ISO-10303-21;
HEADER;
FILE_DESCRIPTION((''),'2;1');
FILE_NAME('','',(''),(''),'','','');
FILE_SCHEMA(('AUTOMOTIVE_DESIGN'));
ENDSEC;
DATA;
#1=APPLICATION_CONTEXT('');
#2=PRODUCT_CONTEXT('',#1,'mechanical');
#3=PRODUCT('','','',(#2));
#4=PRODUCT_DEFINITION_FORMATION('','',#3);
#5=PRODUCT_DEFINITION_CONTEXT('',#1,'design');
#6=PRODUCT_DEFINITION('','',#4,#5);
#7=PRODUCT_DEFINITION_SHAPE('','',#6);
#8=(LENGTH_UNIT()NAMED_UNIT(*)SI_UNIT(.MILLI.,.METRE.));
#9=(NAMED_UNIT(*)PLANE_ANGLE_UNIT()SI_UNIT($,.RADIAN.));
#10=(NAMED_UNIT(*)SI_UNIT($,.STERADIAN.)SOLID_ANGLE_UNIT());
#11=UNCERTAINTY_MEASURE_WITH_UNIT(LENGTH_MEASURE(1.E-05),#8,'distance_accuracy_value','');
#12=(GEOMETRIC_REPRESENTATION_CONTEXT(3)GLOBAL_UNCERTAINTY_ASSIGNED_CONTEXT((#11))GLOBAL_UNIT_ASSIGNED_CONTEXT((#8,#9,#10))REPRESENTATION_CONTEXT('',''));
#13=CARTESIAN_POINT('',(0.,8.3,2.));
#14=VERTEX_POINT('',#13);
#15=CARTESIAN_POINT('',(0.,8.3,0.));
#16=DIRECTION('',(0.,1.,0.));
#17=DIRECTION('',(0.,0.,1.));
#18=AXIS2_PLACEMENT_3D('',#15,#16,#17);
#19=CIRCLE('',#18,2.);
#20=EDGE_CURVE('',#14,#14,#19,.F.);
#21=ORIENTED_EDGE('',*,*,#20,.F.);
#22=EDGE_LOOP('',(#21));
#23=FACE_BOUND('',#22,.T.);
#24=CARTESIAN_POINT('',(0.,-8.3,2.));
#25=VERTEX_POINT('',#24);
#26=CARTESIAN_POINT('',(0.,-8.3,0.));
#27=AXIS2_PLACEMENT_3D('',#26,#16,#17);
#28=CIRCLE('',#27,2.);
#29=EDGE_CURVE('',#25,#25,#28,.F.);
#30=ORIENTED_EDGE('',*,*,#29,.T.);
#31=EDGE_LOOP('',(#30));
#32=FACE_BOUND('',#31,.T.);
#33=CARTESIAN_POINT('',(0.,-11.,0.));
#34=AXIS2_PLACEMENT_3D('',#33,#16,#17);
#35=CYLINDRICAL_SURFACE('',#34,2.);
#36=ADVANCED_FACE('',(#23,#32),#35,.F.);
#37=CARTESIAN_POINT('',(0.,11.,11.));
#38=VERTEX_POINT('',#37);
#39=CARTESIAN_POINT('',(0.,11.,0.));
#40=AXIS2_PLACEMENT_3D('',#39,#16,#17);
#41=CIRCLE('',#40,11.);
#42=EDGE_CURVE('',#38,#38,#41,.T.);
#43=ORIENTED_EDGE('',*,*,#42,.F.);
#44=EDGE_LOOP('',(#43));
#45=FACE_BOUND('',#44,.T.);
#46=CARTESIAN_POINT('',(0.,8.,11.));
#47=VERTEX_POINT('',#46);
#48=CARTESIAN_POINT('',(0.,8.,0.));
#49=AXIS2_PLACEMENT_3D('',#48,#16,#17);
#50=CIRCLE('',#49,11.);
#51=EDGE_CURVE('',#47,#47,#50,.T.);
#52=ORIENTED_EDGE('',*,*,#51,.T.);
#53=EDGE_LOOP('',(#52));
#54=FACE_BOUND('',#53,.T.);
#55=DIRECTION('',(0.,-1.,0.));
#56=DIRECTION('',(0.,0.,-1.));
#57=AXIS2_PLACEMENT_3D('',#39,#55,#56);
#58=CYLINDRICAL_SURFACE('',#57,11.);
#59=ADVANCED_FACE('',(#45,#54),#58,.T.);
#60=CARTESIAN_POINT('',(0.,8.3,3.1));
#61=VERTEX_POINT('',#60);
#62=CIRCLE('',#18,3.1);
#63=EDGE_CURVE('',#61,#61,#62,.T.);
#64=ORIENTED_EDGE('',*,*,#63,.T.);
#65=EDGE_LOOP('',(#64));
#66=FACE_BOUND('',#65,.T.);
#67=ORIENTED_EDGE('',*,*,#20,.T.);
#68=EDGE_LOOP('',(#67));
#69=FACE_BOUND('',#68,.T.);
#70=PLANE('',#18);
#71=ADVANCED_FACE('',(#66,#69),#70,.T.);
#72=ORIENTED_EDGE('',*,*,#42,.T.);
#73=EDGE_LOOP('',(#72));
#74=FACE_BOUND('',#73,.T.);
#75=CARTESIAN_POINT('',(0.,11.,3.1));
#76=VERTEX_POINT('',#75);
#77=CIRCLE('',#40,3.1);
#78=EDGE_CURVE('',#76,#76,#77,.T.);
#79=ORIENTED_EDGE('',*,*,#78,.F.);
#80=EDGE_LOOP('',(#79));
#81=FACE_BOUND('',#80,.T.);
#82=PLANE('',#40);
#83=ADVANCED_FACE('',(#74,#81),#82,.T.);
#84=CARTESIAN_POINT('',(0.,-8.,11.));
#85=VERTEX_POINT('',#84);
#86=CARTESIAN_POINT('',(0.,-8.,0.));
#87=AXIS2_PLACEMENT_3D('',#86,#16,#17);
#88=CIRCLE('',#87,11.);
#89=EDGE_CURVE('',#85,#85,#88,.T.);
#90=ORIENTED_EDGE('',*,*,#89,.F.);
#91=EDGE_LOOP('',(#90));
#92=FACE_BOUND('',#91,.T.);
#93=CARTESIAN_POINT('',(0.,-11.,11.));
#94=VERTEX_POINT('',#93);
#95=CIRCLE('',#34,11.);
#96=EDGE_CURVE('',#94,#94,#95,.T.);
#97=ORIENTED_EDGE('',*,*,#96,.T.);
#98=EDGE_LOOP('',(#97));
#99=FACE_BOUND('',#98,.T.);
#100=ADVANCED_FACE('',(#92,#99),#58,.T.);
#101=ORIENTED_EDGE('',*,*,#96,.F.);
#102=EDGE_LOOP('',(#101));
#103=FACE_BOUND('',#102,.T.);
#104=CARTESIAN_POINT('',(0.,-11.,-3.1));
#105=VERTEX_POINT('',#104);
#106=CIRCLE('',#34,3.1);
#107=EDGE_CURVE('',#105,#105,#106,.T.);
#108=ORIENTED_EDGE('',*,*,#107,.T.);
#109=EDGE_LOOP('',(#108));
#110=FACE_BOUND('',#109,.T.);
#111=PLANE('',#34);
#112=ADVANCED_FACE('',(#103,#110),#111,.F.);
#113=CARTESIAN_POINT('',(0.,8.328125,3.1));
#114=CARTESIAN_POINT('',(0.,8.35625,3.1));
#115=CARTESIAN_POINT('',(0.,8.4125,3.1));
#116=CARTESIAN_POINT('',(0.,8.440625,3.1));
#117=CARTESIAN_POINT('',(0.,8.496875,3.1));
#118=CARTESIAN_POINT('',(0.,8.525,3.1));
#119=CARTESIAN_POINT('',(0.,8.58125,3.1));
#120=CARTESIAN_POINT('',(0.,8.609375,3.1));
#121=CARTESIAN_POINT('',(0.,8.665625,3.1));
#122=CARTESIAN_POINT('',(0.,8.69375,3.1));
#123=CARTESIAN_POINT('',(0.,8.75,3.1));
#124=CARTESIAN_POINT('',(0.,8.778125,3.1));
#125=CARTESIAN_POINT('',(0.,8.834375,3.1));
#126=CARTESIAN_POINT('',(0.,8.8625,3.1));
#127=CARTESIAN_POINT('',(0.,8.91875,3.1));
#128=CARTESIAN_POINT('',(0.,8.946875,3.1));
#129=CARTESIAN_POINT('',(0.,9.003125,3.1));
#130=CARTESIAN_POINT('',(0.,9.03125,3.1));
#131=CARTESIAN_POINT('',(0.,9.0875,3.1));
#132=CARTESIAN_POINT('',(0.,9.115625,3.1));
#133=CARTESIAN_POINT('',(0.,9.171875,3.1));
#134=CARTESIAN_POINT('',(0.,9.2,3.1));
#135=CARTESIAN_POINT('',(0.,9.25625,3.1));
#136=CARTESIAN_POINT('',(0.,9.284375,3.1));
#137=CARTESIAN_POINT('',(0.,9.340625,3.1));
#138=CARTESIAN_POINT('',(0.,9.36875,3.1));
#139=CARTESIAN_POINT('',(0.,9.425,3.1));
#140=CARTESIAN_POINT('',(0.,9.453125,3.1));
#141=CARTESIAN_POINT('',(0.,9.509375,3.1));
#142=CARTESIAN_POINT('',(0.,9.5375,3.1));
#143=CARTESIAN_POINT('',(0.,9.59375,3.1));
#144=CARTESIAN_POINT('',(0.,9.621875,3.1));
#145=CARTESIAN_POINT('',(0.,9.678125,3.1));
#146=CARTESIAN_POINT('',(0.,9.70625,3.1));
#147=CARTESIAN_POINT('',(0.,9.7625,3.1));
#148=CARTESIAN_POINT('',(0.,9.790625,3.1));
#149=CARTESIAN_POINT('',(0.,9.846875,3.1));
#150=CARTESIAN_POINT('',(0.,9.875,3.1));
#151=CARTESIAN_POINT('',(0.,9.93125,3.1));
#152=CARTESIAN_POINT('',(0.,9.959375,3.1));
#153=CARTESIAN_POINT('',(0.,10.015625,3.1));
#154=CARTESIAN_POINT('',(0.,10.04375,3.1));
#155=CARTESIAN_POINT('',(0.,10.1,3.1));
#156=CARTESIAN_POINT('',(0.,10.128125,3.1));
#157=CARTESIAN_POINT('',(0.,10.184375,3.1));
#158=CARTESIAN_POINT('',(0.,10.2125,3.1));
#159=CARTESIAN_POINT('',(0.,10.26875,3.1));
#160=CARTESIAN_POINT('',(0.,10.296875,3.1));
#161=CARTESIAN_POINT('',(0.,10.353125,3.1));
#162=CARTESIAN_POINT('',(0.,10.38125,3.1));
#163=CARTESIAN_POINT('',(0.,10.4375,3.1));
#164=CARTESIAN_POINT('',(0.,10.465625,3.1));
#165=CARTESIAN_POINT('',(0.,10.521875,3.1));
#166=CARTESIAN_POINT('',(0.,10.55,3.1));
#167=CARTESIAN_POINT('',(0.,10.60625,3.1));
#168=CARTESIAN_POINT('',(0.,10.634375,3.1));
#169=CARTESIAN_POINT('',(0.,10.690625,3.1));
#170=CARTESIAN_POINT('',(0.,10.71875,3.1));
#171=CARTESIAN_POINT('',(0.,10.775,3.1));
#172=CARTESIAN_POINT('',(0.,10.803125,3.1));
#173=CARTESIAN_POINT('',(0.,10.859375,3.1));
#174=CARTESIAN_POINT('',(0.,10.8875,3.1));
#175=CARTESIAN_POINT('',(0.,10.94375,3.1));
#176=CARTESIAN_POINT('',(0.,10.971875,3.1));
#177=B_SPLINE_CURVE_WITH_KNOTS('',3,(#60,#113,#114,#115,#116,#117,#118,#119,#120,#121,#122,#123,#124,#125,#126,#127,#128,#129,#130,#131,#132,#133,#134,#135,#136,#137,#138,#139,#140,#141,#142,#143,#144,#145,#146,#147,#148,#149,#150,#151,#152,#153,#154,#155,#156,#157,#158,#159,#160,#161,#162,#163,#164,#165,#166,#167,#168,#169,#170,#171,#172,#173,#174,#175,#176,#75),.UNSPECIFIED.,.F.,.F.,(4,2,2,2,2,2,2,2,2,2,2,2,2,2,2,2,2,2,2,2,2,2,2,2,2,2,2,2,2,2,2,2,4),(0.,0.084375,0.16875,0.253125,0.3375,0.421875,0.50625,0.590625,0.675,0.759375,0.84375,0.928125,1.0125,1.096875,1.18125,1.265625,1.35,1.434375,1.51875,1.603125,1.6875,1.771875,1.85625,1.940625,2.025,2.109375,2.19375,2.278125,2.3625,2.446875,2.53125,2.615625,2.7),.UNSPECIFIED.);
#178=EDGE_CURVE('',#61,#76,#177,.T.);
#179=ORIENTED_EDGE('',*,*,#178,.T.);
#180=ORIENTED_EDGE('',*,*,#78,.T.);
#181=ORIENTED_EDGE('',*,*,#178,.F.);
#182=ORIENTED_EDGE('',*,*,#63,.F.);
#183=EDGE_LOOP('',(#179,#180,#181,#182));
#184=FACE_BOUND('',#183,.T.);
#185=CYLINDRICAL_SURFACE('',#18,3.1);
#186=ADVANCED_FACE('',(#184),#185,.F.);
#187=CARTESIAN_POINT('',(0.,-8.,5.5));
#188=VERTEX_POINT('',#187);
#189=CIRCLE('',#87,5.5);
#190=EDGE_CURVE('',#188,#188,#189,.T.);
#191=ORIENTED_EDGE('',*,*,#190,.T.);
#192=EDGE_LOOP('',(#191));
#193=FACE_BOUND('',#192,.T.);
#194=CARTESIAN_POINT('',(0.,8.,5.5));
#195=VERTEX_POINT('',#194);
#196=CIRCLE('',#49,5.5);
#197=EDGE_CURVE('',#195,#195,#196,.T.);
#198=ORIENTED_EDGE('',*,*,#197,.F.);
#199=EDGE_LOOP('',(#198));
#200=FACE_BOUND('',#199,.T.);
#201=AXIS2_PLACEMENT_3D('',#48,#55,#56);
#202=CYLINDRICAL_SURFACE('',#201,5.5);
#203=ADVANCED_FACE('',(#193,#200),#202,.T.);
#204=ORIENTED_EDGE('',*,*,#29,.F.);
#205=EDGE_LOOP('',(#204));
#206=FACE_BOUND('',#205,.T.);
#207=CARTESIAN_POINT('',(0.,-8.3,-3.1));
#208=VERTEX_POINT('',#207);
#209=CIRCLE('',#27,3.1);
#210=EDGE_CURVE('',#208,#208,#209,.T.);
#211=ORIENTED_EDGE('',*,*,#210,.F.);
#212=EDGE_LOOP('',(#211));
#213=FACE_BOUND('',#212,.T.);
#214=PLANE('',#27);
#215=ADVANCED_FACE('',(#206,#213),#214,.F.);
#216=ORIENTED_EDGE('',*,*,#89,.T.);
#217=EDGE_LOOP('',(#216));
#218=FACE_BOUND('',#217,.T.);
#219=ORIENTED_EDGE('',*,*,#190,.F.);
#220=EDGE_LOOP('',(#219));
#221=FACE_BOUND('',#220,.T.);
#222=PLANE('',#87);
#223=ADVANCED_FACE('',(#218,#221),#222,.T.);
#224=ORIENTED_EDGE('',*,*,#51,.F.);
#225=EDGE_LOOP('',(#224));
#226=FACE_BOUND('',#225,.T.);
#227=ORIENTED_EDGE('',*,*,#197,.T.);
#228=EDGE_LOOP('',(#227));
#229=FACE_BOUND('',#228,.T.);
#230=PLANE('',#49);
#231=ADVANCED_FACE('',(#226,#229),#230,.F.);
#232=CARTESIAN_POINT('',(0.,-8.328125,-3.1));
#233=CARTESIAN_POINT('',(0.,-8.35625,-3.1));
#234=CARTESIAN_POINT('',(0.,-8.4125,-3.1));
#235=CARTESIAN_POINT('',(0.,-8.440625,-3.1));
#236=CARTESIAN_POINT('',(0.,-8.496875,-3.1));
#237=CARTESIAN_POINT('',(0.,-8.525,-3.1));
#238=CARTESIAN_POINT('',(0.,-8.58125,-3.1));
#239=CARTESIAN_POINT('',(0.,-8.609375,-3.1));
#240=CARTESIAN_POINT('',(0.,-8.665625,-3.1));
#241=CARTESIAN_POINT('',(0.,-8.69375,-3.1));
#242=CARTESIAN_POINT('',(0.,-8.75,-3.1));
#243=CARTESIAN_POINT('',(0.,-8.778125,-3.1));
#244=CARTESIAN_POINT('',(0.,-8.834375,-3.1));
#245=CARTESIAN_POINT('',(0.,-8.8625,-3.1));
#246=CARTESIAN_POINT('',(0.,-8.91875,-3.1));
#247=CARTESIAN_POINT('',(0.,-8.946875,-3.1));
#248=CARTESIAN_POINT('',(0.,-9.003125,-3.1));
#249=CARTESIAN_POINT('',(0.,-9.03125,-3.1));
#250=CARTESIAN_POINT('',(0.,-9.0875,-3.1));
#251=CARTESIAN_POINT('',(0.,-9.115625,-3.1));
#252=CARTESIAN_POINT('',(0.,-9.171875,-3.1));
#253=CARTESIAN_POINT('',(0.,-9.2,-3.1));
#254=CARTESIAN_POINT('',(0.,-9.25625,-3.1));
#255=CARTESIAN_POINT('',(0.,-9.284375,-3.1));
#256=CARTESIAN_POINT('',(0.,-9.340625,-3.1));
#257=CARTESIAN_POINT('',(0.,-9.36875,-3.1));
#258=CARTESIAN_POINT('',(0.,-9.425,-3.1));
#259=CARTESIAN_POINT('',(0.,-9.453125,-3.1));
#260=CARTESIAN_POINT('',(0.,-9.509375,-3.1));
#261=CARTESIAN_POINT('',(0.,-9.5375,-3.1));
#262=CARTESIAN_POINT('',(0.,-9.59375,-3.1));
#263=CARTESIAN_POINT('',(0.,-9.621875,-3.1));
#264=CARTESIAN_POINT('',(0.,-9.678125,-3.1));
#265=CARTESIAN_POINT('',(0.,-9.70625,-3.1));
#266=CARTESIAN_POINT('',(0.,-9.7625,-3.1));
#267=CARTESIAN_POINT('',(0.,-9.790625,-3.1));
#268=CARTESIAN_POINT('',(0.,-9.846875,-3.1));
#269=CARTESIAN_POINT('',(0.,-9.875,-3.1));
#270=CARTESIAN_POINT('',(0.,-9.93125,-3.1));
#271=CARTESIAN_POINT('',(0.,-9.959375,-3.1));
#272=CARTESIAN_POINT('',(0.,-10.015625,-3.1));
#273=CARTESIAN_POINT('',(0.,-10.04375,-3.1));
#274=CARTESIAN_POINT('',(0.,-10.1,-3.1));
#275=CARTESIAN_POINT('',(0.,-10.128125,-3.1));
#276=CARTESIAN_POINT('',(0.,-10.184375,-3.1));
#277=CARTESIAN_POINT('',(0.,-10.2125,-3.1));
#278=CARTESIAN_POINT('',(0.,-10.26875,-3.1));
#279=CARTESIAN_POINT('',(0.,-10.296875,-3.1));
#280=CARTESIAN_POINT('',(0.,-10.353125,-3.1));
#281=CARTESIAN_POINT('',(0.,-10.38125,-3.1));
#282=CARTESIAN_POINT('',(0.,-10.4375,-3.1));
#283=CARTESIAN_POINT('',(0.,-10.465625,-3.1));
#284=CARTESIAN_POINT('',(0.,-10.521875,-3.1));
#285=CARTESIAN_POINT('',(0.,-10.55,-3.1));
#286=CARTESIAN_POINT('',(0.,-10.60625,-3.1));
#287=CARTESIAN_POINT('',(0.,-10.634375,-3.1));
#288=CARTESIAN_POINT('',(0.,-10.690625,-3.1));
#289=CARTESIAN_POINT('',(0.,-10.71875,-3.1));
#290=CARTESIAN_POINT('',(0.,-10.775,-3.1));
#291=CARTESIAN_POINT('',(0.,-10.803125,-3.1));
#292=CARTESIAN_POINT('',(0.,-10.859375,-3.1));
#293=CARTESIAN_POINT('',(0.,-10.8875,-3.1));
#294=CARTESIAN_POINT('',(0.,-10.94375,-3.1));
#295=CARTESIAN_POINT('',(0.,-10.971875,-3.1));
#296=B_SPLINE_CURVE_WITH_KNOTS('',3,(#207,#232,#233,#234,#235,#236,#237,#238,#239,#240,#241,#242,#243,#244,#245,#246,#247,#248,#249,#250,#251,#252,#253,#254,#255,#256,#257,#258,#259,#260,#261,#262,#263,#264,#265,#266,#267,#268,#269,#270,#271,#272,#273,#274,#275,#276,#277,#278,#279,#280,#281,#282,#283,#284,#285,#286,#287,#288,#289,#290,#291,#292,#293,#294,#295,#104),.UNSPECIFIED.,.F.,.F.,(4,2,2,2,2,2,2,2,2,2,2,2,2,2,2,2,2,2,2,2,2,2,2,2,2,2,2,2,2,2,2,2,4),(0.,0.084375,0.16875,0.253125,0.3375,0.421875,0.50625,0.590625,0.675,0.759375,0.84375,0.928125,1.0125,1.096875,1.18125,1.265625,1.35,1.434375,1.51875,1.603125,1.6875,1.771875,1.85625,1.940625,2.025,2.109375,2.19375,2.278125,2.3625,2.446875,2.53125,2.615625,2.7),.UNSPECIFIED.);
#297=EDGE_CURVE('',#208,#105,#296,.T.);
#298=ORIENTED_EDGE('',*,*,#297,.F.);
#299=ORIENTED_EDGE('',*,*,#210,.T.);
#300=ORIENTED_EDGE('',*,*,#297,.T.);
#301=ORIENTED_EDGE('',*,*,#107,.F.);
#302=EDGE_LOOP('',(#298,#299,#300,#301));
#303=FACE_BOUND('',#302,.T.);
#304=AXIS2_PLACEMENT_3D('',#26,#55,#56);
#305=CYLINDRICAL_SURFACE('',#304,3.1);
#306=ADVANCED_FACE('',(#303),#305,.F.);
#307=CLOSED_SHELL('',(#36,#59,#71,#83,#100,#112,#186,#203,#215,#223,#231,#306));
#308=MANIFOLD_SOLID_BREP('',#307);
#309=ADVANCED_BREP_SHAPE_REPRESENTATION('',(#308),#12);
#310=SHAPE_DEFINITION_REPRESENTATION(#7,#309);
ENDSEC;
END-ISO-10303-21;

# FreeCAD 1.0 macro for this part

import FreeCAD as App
import Part
import Sketcher
from FreeCAD import Vector
Q = App.Units.Quantity

doc = App.newDocument("Part")
body = doc.addObject("PartDesign::Body", "Body")

# Sketch on XZ plane
sketch1 = doc.addObject("Sketcher::SketchObject", "Sketch")
body.addObject(sketch1)
sketch1.AttachmentSupport = (doc.XZ_Plane, [""])
sketch1.MapMode = "FlatFace"
sketch1.addGeometry(Part.Circle(Vector(0, 0, 0), Vector(0, 0, 1), 11), False)
sketch1.addConstraint([
    Sketcher.Constraint("Coincident", 0, 3, -1, 1),
    Sketcher.Constraint("Diameter", 0, Q("22 mm")),
])
pad1 = doc.addObject("PartDesign::Pad", "Pad")
body.addObject(pad1)
pad1.Profile = sketch1
pad1.Length = 22
pad1.Midplane = True

# Sketch on XZ plane
sketch2 = doc.addObject("Sketcher::SketchObject", "Sketch001")
body.addObject(sketch2)
sketch2.AttachmentSupport = (doc.XZ_Plane, [""])
sketch2.MapMode = "FlatFace"
sketch2.addGeometry([
    Part.Circle(Vector(0, 0, 0), Vector(0, 0, 1), 11),
    Part.Circle(Vector(0, 0, 0), Vector(0, 0, 1), 6),
], False)
sketch2.addConstraint([
    Sketcher.Constraint("Coincident", 0, 3, -1, 1),
    Sketcher.Constraint("Coincident", 1, 3, -1, 1),
    Sketcher.Constraint("Diameter", 0, Q("22 mm")),
    Sketcher.Constraint("Diameter", 1, Q("11 mm")),
])
pocket1 = doc.addObject("PartDesign::Pocket", "Pocket")
body.addObject(pocket1)
pocket1.Profile = sketch2
pocket1.Length = 16
pocket1.Midplane = True

# Sketch on XZ plane
sketch3 = doc.addObject("Sketcher::SketchObject", "Sketch002")
body.addObject(sketch3)
sketch3.AttachmentSupport = (doc.XZ_Plane, [""])
sketch3.MapMode = "FlatFace"
sketch3.AttachmentOffset = App.Placement(Vector(0, 0, -11), App.Rotation())
sketch3.addGeometry(Part.Circle(Vector(0, 0, 0), Vector(0, 0, 1), 2), False)
sketch3.addConstraint([
    Sketcher.Constraint("Coincident", 0, 3, -1, 1),
    Sketcher.Constraint("Diameter", 0, Q("4 mm")),
])
pocket2 = doc.addObject("PartDesign::Pocket", "Pocket001")
body.addObject(pocket2)
pocket2.Profile = sketch3
pocket2.Type = "ThroughAll"
pocket2.Reversed = True

# Sketch on XZ plane
sketch4 = doc.addObject("Sketcher::SketchObject", "Sketch003")
body.addObject(sketch4)
sketch4.AttachmentSupport = (doc.XZ_Plane, [""])
sketch4.MapMode = "FlatFace"
sketch4.AttachmentOffset = App.Placement(Vector(0, 0, -11), App.Rotation())
sketch4.addGeometry(Part.Circle(Vector(0, 0, 0), Vector(0, 0, 1), 3.1), False)
sketch4.addConstraint([
    Sketcher.Constraint("Coincident", 0, 3, -1, 1),
    Sketcher.Constraint("Diameter", 0, Q("6.2 mm")),
])
pocket3 = doc.addObject("PartDesign::Pocket", "Pocket002")
body.addObject(pocket3)
pocket3.Profile = sketch4
pocket3.Length = 2.7
pocket3.Reversed = True

# Sketch on XZ plane
sketch5 = doc.addObject("Sketcher::SketchObject", "Sketch004")
body.addObject(sketch5)
sketch5.AttachmentSupport = (doc.XZ_Plane, [""])
sketch5.MapMode = "FlatFace"
sketch5.AttachmentOffset = App.Placement(Vector(0, 0, 8.3), App.Rotation())
sketch5.addGeometry(Part.Circle(Vector(0, 0, 0), Vector(0, 0, 1), 3.1), False)
sketch5.addConstraint([
    Sketcher.Constraint("Coincident", 0, 3, -1, 1),
    Sketcher.Constraint("Diameter", 0, Q("6.2 mm")),
])
pocket4 = doc.addObject("PartDesign::Pocket", "Pocket003")
body.addObject(pocket4)
pocket4.Profile = sketch5
pocket4.Length = 2.7
pocket4.Reversed = True

doc.recompute()
